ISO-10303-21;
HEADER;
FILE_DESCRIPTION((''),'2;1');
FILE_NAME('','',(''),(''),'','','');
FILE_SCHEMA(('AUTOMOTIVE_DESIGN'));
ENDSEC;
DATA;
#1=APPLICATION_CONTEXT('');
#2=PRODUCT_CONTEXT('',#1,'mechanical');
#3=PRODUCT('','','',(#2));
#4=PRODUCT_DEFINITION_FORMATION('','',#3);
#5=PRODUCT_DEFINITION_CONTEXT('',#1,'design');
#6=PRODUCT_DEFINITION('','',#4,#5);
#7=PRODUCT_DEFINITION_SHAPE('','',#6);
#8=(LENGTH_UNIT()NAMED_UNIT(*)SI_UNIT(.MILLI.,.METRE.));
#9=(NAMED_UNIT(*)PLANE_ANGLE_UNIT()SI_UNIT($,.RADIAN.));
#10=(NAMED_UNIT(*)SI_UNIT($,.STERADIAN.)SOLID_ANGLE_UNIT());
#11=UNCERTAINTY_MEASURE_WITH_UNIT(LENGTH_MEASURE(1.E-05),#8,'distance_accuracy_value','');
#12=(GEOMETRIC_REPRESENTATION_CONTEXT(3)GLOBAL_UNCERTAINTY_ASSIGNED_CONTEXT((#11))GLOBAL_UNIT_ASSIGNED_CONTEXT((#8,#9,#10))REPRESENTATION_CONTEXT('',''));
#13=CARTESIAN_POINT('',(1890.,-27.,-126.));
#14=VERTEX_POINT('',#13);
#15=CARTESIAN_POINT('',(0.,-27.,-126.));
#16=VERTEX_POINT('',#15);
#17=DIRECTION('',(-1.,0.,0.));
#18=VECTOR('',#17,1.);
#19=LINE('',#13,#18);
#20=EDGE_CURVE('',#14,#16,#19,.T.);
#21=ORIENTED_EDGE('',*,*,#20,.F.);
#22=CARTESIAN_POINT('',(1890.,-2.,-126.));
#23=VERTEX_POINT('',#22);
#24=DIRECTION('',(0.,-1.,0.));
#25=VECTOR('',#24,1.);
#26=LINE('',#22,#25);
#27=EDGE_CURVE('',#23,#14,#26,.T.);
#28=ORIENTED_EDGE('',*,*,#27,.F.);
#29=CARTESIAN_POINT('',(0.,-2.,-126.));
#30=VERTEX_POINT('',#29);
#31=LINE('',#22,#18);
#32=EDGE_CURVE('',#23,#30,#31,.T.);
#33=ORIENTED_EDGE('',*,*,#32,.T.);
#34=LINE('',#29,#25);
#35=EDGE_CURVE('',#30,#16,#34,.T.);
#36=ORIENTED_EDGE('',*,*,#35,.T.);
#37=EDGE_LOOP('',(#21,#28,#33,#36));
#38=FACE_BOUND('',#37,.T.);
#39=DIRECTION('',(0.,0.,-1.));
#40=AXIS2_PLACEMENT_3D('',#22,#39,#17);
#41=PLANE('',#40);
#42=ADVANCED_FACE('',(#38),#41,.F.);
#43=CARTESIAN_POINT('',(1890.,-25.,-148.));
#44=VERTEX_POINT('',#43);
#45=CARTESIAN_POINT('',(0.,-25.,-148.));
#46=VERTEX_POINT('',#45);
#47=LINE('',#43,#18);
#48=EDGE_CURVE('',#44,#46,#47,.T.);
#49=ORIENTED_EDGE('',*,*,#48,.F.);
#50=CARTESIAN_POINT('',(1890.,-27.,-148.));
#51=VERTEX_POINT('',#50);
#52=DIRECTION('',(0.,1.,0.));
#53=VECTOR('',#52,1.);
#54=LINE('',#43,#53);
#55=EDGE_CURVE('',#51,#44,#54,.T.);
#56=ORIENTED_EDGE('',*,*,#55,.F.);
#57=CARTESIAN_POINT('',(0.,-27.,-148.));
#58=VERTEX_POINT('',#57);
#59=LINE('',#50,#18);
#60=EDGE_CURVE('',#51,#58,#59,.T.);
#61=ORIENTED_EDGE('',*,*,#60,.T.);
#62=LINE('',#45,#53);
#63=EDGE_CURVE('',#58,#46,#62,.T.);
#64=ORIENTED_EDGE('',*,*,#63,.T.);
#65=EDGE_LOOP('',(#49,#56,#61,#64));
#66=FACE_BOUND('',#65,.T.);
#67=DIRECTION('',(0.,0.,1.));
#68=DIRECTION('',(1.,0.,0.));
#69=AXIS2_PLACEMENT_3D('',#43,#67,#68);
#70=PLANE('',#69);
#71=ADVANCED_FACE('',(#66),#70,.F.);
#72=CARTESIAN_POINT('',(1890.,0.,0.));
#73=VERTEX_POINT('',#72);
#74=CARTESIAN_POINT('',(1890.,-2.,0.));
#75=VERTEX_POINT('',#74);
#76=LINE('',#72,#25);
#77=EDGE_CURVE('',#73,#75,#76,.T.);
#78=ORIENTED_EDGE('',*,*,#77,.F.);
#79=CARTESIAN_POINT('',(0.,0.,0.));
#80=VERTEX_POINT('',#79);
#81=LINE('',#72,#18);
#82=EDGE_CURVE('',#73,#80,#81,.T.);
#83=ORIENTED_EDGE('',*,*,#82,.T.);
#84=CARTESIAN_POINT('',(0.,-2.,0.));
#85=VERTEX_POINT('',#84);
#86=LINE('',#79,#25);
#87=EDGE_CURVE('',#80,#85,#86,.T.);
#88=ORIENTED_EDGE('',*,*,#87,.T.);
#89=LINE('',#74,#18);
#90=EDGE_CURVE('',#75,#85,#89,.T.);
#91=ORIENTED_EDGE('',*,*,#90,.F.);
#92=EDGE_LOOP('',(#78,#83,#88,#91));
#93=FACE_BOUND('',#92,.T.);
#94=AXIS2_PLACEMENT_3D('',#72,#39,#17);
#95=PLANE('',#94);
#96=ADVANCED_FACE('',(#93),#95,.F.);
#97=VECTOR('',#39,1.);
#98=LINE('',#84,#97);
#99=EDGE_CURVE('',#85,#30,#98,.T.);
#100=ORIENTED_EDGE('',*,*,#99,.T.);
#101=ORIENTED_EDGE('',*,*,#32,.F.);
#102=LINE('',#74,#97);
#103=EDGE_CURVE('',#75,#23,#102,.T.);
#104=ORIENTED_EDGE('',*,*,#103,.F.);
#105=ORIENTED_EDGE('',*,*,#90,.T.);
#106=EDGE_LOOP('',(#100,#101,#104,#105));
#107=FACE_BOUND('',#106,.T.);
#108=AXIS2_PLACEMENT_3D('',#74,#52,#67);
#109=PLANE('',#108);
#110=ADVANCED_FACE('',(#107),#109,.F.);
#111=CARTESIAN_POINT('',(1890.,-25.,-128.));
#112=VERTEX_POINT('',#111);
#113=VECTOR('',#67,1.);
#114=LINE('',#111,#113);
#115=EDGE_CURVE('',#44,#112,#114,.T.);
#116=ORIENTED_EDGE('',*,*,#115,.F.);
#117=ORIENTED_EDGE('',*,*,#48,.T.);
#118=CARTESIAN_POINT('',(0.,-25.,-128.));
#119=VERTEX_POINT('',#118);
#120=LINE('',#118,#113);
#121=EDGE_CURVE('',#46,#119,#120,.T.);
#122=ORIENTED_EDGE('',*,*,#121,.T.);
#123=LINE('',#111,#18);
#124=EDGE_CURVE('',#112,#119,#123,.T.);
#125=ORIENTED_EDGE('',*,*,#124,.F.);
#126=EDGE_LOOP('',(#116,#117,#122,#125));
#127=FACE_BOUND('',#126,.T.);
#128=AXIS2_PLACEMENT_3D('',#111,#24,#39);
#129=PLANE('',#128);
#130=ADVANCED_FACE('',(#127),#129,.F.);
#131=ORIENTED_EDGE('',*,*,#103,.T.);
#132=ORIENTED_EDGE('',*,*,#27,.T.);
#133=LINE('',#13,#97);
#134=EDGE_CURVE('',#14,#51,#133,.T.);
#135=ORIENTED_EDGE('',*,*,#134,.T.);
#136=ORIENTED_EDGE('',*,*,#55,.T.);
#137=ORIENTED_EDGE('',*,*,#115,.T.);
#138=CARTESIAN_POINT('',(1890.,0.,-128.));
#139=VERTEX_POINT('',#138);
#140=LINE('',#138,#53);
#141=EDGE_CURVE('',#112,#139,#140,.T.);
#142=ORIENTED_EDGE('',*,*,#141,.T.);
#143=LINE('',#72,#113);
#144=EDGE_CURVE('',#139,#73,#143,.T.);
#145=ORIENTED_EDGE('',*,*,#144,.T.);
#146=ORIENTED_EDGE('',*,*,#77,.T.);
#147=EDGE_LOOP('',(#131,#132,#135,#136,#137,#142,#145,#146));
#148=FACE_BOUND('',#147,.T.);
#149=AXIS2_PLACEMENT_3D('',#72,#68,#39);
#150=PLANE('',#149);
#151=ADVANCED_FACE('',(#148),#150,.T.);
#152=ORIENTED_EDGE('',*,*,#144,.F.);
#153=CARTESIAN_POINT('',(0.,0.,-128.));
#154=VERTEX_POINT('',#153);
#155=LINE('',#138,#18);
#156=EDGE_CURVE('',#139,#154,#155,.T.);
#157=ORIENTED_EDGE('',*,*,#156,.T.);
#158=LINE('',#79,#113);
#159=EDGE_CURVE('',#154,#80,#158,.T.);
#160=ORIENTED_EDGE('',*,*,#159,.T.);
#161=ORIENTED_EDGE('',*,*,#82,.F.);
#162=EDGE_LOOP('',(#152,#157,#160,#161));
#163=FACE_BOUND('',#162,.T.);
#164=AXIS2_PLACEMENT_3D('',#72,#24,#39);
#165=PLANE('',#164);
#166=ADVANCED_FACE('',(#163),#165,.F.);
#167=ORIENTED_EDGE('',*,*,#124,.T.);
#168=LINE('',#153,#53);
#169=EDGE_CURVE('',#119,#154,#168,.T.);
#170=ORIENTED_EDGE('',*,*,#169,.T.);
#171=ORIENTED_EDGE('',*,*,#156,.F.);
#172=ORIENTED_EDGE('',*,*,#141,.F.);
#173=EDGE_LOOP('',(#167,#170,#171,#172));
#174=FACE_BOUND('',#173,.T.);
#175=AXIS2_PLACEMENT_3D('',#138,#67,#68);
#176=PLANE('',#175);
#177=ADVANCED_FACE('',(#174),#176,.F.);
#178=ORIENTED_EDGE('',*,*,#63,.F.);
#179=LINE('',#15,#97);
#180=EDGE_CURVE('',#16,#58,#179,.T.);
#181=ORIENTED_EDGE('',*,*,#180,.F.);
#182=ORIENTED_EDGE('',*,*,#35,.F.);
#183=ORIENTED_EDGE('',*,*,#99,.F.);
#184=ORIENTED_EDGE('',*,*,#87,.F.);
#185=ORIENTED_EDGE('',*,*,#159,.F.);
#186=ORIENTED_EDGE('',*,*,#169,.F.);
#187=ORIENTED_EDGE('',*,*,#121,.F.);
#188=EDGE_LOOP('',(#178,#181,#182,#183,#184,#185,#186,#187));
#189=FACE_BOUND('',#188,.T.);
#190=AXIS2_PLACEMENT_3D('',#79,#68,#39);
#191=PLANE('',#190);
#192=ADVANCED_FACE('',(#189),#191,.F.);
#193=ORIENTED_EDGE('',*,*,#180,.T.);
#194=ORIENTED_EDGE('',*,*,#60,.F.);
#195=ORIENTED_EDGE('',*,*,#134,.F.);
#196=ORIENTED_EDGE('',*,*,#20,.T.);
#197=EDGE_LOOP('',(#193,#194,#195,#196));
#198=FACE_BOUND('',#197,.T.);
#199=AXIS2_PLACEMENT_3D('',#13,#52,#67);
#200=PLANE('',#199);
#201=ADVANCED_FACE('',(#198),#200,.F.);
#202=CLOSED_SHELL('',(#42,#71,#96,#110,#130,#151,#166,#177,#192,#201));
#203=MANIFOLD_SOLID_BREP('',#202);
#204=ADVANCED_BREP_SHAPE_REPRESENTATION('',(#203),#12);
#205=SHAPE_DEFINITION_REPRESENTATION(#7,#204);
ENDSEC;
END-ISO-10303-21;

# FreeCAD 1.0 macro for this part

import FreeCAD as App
import Part
import Sketcher

V = App.Vector
Q = App.Units.Quantity

doc = App.newDocument("Part")
params = doc.addObject("Spreadsheet::Sheet", "Params")
for row, (alias, value) in enumerate([
    ("sketch1_width", "2 mm"),
    ("sketch1_width2", "25 mm"),
    ("sketch1_height", "128 mm"),
    ("sketch1_height2", "126 mm"),
    ("sketch1_height3", "22 mm"),
    ("pad1_length", "1890 mm"),
], start=1):
    params.set(f"A{row}", alias)
    params.set(f"B{row}", "=" + value)
    params.setAlias(f"B{row}", alias)

body = doc.addObject("PartDesign::Body", "Body")

# Sketch on YZ plane
sketch1 = body.newObject("Sketcher::SketchObject", "Sketch")
sketch1.AttachmentSupport = (doc.getObject("YZ_Plane"), [""])
sketch1.MapMode = "FlatFace"
sketch1.addGeometry([
    Part.LineSegment(V(0, -128, 0), V(0, 0, 0)),  # 0
    Part.LineSegment(V(0, 0, 0), V(-2, 0, 0)),  # 1
    Part.LineSegment(V(-2, 0, 0), V(-2, -126, 0)),  # 2
    Part.LineSegment(V(-2, -126, 0), V(-27, -126, 0)),  # 3
    Part.LineSegment(V(-27, -126, 0), V(-27, -148, 0)),  # 4
    Part.LineSegment(V(-27, -148, 0), V(-25, -148, 0)),  # 5
    Part.LineSegment(V(-25, -148, 0), V(-25, -128, 0)),  # 6
    Part.LineSegment(V(-25, -128, 0), V(0, -128, 0)),  # 7
], False)
sketch1.addConstraint([
    Sketcher.Constraint("Coincident", 0, 2, 1, 1),
    Sketcher.Constraint("Coincident", 1, 2, 2, 1),
    Sketcher.Constraint("Coincident", 2, 2, 3, 1),
    Sketcher.Constraint("Coincident", 3, 2, 4, 1),
    Sketcher.Constraint("Coincident", 4, 2, 5, 1),
    Sketcher.Constraint("Coincident", 5, 2, 6, 1),
    Sketcher.Constraint("Coincident", 6, 2, 7, 1),
    Sketcher.Constraint("Coincident", 7, 2, 0, 1),
    Sketcher.Constraint("Vertical", 0),
    Sketcher.Constraint("Horizontal", 1),
    Sketcher.Constraint("Vertical", 2),
    Sketcher.Constraint("Horizontal", 3),
    Sketcher.Constraint("Vertical", 4),
    Sketcher.Constraint("Horizontal", 5),
    Sketcher.Constraint("Vertical", 6),
    Sketcher.Constraint("Horizontal", 7),
    Sketcher.Constraint("Coincident", 0, 2, -1, 1),
    Sketcher.Constraint("Equal", 1, 5),
    Sketcher.Constraint("DistanceX", 1, 2, 1, 1, Q("2 mm")),
    Sketcher.Constraint("DistanceX", 3, 2, 3, 1, Q("25 mm")),
    Sketcher.Constraint("DistanceY", 0, 1, 0, 2, Q("128 mm")),
    Sketcher.Constraint("DistanceY", 2, 2, 2, 1, Q("126 mm")),
    Sketcher.Constraint("DistanceY", 4, 2, 4, 1, Q("22 mm")),
])
sketch1.setExpression("Constraints[18]", "Params.sketch1_width")
sketch1.setExpression("Constraints[19]", "Params.sketch1_width2")
sketch1.setExpression("Constraints[20]", "Params.sketch1_height")
sketch1.setExpression("Constraints[21]", "Params.sketch1_height2")
sketch1.setExpression("Constraints[22]", "Params.sketch1_height3")
pad1 = body.newObject("PartDesign::Pad", "Pad")
pad1.Profile = sketch1
pad1.setExpression("Length", "Params.pad1_length")

doc.recompute()
